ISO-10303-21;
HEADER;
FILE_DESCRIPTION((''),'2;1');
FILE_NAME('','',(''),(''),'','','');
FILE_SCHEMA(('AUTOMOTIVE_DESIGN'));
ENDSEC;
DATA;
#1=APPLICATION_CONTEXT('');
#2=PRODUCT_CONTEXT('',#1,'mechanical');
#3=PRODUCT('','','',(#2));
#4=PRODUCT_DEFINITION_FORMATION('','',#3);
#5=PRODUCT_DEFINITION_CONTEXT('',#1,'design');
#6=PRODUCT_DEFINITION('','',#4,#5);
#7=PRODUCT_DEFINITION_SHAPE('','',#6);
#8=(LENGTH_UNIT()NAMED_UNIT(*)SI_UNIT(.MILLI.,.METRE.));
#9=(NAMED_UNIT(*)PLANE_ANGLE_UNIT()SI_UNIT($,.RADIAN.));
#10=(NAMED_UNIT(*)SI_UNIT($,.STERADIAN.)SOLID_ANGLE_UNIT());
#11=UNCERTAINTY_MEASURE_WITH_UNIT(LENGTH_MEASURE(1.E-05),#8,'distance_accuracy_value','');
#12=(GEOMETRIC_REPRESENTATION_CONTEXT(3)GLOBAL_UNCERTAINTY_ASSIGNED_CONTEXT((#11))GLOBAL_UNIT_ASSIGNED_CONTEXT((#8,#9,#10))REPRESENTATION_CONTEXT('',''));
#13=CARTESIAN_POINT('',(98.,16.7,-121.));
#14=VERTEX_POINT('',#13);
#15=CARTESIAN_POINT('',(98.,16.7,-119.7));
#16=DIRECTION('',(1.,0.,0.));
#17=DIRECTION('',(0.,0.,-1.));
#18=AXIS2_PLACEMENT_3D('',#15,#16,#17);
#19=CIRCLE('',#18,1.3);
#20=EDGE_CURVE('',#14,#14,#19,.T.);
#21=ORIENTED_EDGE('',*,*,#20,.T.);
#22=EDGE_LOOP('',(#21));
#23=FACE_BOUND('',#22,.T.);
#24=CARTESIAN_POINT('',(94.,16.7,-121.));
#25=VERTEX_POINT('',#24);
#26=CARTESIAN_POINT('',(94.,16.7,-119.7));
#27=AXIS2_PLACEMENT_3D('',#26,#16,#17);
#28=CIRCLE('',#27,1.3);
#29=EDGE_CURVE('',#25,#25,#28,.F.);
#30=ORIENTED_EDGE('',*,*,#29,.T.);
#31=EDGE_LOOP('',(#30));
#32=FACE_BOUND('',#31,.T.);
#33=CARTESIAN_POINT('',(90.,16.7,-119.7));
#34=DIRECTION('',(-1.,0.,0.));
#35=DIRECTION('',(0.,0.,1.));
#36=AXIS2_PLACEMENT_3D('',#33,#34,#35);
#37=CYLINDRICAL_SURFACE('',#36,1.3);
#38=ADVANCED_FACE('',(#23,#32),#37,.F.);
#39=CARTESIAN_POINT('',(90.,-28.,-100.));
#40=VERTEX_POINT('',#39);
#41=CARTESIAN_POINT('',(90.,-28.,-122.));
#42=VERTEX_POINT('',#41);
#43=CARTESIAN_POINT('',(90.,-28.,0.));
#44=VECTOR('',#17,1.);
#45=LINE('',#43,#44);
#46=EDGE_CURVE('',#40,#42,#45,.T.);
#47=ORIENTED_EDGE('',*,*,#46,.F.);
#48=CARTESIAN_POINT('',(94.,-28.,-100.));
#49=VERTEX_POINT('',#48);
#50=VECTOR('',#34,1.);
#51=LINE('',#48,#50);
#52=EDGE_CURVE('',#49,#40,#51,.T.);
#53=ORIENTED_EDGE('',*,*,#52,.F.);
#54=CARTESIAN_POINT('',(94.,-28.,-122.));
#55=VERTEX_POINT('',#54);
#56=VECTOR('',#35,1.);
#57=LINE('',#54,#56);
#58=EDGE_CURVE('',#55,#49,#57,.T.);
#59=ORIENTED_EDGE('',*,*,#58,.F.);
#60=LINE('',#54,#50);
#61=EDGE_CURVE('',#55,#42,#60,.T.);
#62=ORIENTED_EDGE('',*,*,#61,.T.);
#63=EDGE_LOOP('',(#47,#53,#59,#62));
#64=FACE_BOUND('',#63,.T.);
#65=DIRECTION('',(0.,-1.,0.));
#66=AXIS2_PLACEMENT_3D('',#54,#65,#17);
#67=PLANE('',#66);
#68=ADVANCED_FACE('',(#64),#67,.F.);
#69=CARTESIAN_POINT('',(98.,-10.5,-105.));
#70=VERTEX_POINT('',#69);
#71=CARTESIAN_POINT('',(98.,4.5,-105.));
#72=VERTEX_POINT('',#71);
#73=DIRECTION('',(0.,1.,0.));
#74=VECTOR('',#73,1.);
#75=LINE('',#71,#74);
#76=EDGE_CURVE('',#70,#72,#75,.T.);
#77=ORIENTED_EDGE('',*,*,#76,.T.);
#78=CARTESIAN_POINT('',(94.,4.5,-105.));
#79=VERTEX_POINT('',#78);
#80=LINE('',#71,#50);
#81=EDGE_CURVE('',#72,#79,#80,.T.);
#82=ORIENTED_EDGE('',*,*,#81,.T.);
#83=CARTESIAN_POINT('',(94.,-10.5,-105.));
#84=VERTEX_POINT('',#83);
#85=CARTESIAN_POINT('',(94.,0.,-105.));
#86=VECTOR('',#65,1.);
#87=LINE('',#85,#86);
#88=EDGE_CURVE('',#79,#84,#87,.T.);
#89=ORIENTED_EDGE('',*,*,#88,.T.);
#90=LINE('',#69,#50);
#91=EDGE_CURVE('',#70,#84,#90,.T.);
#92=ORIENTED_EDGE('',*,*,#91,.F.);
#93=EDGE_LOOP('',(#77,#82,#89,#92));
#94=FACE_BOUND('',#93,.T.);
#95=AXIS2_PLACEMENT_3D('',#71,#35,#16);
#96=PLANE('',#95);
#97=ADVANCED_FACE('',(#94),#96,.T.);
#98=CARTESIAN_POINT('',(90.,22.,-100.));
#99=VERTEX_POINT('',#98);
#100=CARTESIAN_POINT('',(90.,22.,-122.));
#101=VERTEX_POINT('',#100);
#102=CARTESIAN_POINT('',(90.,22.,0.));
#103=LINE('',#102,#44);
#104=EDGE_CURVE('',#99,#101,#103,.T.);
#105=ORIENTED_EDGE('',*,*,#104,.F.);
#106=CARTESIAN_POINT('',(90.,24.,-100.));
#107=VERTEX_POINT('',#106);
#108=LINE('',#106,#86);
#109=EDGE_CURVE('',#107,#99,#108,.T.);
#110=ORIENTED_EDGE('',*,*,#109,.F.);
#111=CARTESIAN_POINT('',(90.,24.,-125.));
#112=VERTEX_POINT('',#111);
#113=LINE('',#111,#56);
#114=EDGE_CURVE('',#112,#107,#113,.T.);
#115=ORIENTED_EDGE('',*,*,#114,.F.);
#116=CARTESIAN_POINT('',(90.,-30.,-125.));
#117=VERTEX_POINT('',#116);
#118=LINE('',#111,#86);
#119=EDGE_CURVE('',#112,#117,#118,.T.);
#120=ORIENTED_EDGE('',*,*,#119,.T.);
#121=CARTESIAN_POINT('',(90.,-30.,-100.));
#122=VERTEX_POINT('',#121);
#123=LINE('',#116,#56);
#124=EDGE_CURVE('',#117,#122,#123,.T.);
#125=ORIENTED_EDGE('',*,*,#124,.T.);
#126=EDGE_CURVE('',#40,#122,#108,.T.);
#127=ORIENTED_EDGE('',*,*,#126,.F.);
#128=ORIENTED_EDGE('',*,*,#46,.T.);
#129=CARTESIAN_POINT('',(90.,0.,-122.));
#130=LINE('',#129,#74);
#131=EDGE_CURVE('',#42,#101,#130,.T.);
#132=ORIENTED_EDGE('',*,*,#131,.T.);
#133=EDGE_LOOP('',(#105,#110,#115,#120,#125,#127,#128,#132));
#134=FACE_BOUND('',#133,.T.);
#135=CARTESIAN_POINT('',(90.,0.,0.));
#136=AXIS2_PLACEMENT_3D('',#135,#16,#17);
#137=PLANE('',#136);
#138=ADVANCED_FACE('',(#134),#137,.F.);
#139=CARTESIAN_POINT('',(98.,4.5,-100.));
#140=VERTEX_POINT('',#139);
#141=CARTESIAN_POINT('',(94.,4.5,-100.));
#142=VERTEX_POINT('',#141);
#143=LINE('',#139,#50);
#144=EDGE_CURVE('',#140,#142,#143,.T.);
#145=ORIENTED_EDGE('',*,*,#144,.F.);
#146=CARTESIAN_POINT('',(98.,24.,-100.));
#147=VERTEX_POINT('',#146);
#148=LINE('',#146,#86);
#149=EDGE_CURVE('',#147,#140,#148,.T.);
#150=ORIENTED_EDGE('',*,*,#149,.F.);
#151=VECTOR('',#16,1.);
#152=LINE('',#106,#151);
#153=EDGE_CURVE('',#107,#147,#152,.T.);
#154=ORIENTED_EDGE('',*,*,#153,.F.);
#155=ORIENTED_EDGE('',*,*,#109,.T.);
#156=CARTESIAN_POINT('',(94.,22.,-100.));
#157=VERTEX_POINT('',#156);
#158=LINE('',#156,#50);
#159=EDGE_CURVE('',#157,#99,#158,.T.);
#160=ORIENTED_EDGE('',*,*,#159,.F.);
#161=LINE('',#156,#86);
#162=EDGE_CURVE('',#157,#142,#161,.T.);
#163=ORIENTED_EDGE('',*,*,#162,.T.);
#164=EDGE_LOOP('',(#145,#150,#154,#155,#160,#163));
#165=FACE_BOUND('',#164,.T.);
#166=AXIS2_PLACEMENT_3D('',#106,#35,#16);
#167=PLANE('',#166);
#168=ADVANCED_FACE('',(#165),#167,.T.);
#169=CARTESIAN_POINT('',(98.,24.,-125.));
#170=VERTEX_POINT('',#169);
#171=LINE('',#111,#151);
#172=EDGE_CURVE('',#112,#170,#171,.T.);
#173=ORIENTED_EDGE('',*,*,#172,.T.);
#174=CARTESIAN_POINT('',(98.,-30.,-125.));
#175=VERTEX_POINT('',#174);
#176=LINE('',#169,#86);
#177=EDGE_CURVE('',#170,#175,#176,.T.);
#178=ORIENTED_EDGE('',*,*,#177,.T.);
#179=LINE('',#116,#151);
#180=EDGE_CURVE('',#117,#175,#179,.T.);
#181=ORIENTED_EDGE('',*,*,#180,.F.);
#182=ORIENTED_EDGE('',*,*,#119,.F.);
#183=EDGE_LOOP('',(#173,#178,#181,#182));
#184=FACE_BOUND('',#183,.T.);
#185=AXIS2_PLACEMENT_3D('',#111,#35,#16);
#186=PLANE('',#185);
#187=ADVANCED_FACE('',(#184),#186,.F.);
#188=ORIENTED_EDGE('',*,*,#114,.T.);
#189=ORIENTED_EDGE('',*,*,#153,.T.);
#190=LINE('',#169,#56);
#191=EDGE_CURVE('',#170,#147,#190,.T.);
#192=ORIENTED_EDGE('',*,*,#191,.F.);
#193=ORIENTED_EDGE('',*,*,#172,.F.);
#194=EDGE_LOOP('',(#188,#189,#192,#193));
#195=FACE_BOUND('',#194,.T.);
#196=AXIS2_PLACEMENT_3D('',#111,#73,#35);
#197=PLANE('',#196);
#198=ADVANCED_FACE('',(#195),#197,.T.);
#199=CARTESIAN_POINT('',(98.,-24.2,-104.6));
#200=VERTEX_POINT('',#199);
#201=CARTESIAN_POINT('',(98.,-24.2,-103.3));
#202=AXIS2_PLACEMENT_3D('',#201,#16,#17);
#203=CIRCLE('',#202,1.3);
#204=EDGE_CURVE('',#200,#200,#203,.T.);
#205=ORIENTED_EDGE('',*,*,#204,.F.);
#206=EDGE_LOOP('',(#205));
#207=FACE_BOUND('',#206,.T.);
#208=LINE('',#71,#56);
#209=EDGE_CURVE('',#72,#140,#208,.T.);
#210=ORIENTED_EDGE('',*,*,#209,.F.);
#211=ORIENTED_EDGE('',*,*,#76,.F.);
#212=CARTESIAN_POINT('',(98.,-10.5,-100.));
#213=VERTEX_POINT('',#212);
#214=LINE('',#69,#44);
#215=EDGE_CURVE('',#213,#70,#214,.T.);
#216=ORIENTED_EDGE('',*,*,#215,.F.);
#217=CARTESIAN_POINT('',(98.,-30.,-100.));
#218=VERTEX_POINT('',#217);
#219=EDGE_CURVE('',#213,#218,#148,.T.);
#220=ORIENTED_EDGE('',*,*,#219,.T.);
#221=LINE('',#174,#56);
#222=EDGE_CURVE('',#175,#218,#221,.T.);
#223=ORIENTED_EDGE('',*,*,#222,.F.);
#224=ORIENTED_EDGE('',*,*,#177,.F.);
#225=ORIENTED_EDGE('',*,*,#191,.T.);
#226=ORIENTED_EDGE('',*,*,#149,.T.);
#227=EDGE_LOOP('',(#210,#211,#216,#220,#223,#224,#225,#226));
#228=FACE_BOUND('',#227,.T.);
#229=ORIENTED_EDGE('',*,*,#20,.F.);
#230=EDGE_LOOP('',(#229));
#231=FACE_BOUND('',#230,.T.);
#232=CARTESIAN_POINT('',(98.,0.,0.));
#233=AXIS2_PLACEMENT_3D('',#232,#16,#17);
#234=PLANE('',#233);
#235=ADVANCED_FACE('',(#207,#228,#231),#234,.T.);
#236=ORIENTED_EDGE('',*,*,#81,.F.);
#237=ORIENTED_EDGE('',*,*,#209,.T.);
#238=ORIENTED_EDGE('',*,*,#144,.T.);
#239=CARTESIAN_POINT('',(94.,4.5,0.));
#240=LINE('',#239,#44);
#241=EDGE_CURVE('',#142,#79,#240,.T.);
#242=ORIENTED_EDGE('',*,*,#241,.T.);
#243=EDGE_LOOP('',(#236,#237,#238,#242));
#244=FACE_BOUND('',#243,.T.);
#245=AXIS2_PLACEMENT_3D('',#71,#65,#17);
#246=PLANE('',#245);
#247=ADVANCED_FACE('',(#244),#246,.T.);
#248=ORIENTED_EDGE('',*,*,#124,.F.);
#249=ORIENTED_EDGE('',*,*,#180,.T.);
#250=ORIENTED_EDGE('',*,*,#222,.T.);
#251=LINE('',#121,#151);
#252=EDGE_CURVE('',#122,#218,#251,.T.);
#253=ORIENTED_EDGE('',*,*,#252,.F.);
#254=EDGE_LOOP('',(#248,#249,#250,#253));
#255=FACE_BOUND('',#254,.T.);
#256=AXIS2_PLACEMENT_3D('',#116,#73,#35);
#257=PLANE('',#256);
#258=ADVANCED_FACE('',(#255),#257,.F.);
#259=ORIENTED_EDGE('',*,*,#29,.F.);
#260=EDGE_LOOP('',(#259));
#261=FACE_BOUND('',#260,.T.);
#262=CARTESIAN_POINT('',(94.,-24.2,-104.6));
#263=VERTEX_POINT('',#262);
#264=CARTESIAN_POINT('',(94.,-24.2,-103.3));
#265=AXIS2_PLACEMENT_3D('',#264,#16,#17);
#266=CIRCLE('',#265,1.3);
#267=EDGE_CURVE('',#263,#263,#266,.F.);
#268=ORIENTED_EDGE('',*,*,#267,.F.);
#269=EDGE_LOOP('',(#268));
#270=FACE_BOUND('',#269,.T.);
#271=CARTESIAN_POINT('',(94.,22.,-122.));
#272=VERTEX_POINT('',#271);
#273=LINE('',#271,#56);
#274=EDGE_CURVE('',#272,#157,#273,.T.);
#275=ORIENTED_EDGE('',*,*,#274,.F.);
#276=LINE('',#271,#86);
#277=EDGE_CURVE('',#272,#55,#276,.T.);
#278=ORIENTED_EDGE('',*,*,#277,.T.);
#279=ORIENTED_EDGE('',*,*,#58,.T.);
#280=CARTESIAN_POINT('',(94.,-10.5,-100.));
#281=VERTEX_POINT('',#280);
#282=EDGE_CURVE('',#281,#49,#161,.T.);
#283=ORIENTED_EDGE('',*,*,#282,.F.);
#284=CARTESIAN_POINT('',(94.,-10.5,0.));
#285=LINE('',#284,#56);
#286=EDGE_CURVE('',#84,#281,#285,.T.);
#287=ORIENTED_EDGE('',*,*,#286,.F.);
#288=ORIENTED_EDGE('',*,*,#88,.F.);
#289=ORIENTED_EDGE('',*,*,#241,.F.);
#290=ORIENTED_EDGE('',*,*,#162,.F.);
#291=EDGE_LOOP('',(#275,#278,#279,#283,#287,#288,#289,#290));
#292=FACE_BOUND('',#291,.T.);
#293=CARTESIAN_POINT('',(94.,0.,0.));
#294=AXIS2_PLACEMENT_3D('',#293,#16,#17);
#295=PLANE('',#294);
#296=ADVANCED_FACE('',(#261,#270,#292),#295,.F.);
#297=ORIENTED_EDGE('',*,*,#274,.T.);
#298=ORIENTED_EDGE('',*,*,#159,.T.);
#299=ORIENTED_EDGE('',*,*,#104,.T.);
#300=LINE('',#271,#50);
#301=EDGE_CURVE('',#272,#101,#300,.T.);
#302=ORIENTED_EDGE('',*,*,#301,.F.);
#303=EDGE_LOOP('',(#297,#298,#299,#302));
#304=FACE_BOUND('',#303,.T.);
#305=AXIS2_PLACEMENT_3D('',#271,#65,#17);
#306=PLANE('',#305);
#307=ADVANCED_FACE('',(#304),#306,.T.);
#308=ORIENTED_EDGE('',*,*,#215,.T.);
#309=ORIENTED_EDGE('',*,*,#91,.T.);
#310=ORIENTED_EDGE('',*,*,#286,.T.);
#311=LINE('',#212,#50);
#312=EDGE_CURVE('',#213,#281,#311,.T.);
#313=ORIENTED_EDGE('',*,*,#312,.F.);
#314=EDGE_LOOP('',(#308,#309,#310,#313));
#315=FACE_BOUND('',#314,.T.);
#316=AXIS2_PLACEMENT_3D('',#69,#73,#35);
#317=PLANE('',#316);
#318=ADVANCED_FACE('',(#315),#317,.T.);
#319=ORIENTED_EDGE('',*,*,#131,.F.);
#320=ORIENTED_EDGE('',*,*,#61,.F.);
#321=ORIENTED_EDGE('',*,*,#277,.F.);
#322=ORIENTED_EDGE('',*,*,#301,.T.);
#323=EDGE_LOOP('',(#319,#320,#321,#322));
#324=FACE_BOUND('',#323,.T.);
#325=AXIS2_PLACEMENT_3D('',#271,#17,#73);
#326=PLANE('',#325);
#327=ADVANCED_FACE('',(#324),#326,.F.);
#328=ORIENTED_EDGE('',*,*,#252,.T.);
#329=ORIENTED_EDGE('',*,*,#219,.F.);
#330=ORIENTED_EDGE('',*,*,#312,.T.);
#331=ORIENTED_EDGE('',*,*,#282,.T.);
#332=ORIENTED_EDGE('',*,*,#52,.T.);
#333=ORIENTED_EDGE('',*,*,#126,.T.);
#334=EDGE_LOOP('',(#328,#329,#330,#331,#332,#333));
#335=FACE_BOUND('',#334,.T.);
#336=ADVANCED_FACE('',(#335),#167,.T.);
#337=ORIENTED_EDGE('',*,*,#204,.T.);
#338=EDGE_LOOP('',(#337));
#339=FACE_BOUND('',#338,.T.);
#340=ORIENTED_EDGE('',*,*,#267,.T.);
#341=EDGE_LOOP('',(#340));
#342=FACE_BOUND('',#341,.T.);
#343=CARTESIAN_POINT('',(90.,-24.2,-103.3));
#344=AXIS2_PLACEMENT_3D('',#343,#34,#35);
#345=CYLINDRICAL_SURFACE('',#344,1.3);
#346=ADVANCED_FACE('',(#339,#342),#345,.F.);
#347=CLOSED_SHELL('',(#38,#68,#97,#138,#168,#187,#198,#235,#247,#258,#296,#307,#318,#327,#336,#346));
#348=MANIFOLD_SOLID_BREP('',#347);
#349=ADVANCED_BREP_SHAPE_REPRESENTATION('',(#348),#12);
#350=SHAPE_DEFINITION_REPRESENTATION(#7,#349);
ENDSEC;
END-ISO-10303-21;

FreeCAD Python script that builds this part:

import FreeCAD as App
import Part
import Sketcher

V = App.Vector


def add_polygon(sketch, points):
    """Adds a closed chain of lines whose ends are joined by coincident constraints."""
    first, n = sketch.GeometryCount, len(points)
    for a, b in zip(points, points[1:] + points[:1]):
        sketch.addGeometry(Part.LineSegment(App.Vector(*a, 0), App.Vector(*b, 0)), False)
    for i in range(n):
        sketch.addConstraint(Sketcher.Constraint("Coincident", first + i, 2, first + (i + 1) % n, 1))

doc = App.newDocument("Part")
body = doc.addObject("PartDesign::Body", "Body")

# Sketch on YZ plane
sketch1 = body.newObject("Sketcher::SketchObject", "Sketch")
sketch1.AttachmentSupport = (doc.getObject("YZ_Plane"), [""])
sketch1.MapMode = "FlatFace"
sketch1.AttachmentOffset = App.Placement(V(0, 0, 95), App.Rotation())
add_polygon(sketch1, [(24, -100), (-30, -100), (-30, -125), (24, -125)])  # lines 0-3
sketch1.addConstraint(Sketcher.Constraint("Horizontal", 0))
sketch1.addConstraint(Sketcher.Constraint("Vertical", 1))
sketch1.addConstraint(Sketcher.Constraint("Horizontal", 2))
sketch1.addConstraint(Sketcher.Constraint("Vertical", 3))
sketch1.addConstraint(Sketcher.Constraint("DistanceX", 0, 2, 0, 1, 54.0))
sketch1.addConstraint(Sketcher.Constraint("DistanceY", 1, 2, 1, 1, 25.0))
sketch1.addConstraint(Sketcher.Constraint("DistanceX", 0, 2, -1, 1, 30.0))
sketch1.addConstraint(Sketcher.Constraint("DistanceY", 0, 2, -1, 1, 100.0))
pad1 = body.newObject("PartDesign::Pad", "Pad")
pad1.Profile = sketch1
pad1.Type = "TwoLengths"
pad1.Length = 3
pad1.Length2 = 5

# Sketch on YZ plane
sketch2 = body.newObject("Sketcher::SketchObject", "Sketch001")
sketch2.AttachmentSupport = (doc.getObject("YZ_Plane"), [""])
sketch2.MapMode = "FlatFace"
sketch2.AttachmentOffset = App.Placement(V(0, 0, 69), App.Rotation())
add_polygon(sketch2, [(22, -100), (-28, -100), (-28, -122), (22, -122)])  # lines 0-3
sketch2.addConstraint(Sketcher.Constraint("Horizontal", 0))
sketch2.addConstraint(Sketcher.Constraint("Vertical", 1))
sketch2.addConstraint(Sketcher.Constraint("Horizontal", 2))
sketch2.addConstraint(Sketcher.Constraint("Vertical", 3))
sketch2.addConstraint(Sketcher.Constraint("DistanceX", 0, 2, 0, 1, 50.0))
sketch2.addConstraint(Sketcher.Constraint("DistanceY", 1, 2, 1, 1, 22.0))
sketch2.addConstraint(Sketcher.Constraint("DistanceX", 0, 2, -1, 1, 28.0))
sketch2.addConstraint(Sketcher.Constraint("DistanceY", 0, 2, -1, 1, 100.0))
pocket1 = body.newObject("PartDesign::Pocket", "Pocket")
pocket1.Profile = sketch2
pocket1.Length = 25
pocket1.Reversed = True

# Sketch on YZ plane
sketch3 = body.newObject("Sketcher::SketchObject", "Sketch002")
sketch3.AttachmentSupport = (doc.getObject("YZ_Plane"), [""])
sketch3.MapMode = "FlatFace"
sketch3.AttachmentOffset = App.Placement(V(0, 0, 69), App.Rotation())
add_polygon(sketch3, [(4, -100), (-10, -100), (-10, -105), (4, -105)])  # lines 0-3
sketch3.addConstraint(Sketcher.Constraint("Horizontal", 0))
sketch3.addConstraint(Sketcher.Constraint("Vertical", 1))
sketch3.addConstraint(Sketcher.Constraint("Horizontal", 2))
sketch3.addConstraint(Sketcher.Constraint("Vertical", 3))
sketch3.addConstraint(Sketcher.Constraint("DistanceX", 0, 2, 0, 1, 15.0))
sketch3.addConstraint(Sketcher.Constraint("DistanceY", 1, 2, 1, 1, 5.0))
sketch3.addConstraint(Sketcher.Constraint("DistanceY", 0, 2, -1, 1, 100.0))
sketch3.addConstraint(Sketcher.Constraint("DistanceX", 0, 2, -1, 1, 10.5))
pocket2 = body.newObject("PartDesign::Pocket", "Pocket001")
pocket2.Profile = sketch3
pocket2.Type = "ThroughAll"
pocket2.Reversed = True

# Sketch on YZ plane
sketch4 = body.newObject("Sketcher::SketchObject", "Sketch003")
sketch4.AttachmentSupport = (doc.getObject("YZ_Plane"), [""])
sketch4.MapMode = "FlatFace"
sketch4.AttachmentOffset = App.Placement(V(0, 0, 69), App.Rotation())
sketch4.addGeometry(Part.Circle(V(16.7, -119.7, 0), V(0, 0, 1), 1.3), False)
sketch4.addGeometry(Part.Circle(V(-24.2, -103.3, 0), V(0, 0, 1), 1.3), False)
sketch4.addConstraint(Sketcher.Constraint("Equal", 0, 1))
sketch4.addConstraint(Sketcher.Constraint("Diameter", 0, 2.6))
sketch4.addConstraint(Sketcher.Constraint("DistanceX", -1, 1, 0, 3, 16.7))
sketch4.addConstraint(Sketcher.Constraint("DistanceY", 0, 3, -1, 1, 119.7))
sketch4.addConstraint(Sketcher.Constraint("DistanceX", 1, 3, -1, 1, 24.2))
sketch4.addConstraint(Sketcher.Constraint("DistanceY", 1, 3, -1, 1, 103.3))
pocket3 = body.newObject("PartDesign::Pocket", "Pocket002")
pocket3.Profile = sketch4
pocket3.Type = "ThroughAll"
pocket3.Midplane = True

doc.recompute()
